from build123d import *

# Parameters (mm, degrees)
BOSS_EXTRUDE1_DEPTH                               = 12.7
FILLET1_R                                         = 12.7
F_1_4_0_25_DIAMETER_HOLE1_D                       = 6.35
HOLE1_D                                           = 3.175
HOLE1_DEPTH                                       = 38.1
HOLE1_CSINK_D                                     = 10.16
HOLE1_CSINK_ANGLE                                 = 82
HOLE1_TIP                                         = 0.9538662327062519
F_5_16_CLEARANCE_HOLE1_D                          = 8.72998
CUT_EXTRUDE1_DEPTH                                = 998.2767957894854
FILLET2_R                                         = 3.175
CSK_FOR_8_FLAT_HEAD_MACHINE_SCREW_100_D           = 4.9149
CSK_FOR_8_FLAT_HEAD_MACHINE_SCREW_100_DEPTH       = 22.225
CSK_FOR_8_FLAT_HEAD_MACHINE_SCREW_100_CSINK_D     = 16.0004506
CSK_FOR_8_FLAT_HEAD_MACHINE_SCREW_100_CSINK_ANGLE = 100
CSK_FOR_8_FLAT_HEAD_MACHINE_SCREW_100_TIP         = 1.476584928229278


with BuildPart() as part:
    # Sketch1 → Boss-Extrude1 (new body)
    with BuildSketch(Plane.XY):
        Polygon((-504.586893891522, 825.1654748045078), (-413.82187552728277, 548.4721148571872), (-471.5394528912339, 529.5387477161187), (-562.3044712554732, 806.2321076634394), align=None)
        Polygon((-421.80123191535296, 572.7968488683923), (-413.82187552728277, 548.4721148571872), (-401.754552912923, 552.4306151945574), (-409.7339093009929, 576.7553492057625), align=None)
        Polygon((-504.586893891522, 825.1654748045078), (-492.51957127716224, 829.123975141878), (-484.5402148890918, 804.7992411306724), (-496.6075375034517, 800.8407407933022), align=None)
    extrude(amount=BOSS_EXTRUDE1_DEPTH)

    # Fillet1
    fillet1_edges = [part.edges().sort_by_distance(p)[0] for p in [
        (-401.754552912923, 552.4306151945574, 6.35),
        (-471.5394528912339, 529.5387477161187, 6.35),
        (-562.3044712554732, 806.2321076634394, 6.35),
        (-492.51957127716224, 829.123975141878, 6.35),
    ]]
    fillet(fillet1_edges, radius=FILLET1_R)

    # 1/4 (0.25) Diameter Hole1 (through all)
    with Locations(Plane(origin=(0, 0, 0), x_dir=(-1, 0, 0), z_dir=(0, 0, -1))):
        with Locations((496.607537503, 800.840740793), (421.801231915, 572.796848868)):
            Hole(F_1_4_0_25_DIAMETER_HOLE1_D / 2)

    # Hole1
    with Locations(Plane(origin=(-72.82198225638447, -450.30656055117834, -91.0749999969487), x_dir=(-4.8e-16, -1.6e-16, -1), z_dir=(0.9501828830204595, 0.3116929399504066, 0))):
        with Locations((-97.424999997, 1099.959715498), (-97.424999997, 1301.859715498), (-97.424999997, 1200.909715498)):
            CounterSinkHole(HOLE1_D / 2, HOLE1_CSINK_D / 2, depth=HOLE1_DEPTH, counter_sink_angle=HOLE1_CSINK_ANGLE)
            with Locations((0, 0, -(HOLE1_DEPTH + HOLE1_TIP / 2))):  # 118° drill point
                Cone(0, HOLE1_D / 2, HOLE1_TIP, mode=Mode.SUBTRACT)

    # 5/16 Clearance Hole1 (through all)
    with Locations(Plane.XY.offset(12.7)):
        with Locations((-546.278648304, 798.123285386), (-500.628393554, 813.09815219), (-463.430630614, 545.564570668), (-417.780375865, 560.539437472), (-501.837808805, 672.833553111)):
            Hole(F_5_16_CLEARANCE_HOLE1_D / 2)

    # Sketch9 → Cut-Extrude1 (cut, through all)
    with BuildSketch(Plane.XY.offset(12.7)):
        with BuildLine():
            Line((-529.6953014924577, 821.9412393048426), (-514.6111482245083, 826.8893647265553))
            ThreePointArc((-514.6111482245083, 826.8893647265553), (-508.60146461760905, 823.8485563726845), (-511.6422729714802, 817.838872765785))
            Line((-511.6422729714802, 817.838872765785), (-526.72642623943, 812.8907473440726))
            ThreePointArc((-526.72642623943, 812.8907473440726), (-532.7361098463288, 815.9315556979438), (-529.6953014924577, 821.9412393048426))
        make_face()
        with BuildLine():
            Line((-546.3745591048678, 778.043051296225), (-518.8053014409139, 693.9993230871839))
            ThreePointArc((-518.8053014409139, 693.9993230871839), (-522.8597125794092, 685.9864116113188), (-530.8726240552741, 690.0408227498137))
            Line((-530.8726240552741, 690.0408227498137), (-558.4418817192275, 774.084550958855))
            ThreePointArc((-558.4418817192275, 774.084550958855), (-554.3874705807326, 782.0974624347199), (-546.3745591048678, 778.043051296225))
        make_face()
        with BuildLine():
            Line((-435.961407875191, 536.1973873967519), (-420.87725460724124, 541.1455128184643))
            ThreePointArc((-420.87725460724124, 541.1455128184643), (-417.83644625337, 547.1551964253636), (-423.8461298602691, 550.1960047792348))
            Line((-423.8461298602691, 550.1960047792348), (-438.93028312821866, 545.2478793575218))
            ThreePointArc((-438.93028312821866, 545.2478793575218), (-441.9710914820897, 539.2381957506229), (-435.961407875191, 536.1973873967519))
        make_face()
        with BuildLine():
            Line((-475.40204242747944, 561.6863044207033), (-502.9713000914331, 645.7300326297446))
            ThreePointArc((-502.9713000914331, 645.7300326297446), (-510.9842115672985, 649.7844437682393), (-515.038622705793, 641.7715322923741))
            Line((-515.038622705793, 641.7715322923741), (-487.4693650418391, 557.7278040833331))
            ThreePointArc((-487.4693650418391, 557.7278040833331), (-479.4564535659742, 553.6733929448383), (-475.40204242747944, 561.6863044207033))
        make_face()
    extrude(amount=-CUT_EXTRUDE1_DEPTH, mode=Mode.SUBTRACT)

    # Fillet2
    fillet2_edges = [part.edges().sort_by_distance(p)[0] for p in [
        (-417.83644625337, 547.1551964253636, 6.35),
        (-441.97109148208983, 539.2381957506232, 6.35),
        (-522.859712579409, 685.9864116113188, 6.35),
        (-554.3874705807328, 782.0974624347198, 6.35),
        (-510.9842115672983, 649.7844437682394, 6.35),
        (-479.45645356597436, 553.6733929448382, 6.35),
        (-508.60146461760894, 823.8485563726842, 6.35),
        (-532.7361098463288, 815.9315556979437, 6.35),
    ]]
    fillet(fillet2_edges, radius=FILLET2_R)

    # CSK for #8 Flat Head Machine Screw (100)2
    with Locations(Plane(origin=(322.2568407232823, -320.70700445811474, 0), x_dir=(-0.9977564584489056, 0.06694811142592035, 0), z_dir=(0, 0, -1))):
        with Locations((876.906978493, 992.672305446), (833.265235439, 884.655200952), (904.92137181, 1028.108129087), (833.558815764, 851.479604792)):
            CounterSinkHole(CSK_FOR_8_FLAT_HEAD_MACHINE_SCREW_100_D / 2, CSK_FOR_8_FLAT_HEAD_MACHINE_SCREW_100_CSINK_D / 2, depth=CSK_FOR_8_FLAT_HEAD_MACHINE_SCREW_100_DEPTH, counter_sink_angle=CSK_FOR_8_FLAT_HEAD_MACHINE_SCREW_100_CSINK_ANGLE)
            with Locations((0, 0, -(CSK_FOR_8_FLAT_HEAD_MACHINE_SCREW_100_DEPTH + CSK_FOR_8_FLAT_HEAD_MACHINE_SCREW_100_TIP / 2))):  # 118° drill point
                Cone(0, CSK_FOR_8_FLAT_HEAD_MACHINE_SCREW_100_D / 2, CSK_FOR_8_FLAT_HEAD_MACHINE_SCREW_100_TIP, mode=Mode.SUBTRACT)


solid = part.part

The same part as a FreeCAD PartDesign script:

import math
import FreeCAD as App
import Part
import Sketcher

V = App.Vector
Q = App.Units.Quantity


def edges_at(feature, points):
    """Names of the edges that pass closest to the given points."""
    edges = feature.Shape.Edges
    near = lambda p: min(range(len(edges)), key=lambda i: edges[i].distToShape(Part.Vertex(*p))[0])
    return sorted({f"Edge{near(p) + 1}" for p in points})


def add_polygon(sketch, points):
    """Adds a closed chain of lines whose ends are joined by coincident constraints."""
    first, n = sketch.GeometryCount, len(points)
    for a, b in zip(points, points[1:] + points[:1]):
        sketch.addGeometry(Part.LineSegment(App.Vector(*a, 0), App.Vector(*b, 0)), False)
    for i in range(n):
        sketch.addConstraint(Sketcher.Constraint("Coincident", first + i, 2, first + (i + 1) % n, 1))

doc = App.newDocument("Part")
params = doc.addObject("Spreadsheet::Sheet", "Params")
for row, (alias, value) in enumerate([
    ("sketch1_length", "0.5 in"),
    ("pad1_length", "0.5 in"),
    ("fillet_radius", "0.5 in"),
    ("sketch2_diameter", "0.25 in"),
    ("hole_diameter", "0.25 in"),
    ("sketch3_diameter", "0.125 in"),
    ("hole2_diameter", "0.125 in"),
    ("hole2_depth", "1.5 in"),
    ("hole2_csink_diameter", "0.4 in"),
    ("hole3_diameter", "0.3437 in"),
    ("sketch5_radius", "0.25 in"),
    ("sketch5_radius2", "0.1875 in"),
    ("sketch5_length", "0.625 in"),
    ("fillet2_radius", "0.125 in"),
    ("hole4_diameter", "0.1935 in"),
    ("hole4_depth", "0.875 in"),
    ("hole4_csink_diameter", "16.000451 mm"),
], start=1):
    params.set(f"A{row}", alias)
    params.set(f"B{row}", "=" + value)
    params.setAlias(f"B{row}", alias)

body = doc.addObject("PartDesign::Body", "Body")

# Sketch on XY plane
sketch1 = doc.addObject("Sketcher::SketchObject", "Sketch")
body.addObject(sketch1)
sketch1.AttachmentSupport = (doc.XY_Plane, [""])
sketch1.MapMode = "FlatFace"
add_polygon(sketch1, [(-421.801232, 572.796849), (-496.607538, 800.840741), (-484.540215, 804.799241), (-492.519571, 829.123975), (-562.304471, 806.232108), (-471.539453, 529.538748), (-401.754553, 552.430615), (-409.733909, 576.755349)])  # lines 0-7
sketch1.addConstraint([
    Sketcher.Constraint("Perpendicular", 0, 1),
    Sketcher.Constraint("Perpendicular", 1, 2),
    Sketcher.Constraint("Perpendicular", 2, 3),
    Sketcher.Constraint("Perpendicular", 3, 4),
    Sketcher.Constraint("Perpendicular", 4, 5),
    Sketcher.Constraint("Perpendicular", 5, 6),
    Sketcher.Constraint("Perpendicular", 6, 7),
    Sketcher.Constraint("Equal", 3, 5),
    Sketcher.Constraint("Equal", 2, 6),
    Sketcher.Constraint("Distance", 1, Q("0.5 in")),
    Sketcher.Constraint("Distance", 0, 240.0),
    Sketcher.Constraint("DistanceY", 0, 2, 1, 2, 3.9585),
    Sketcher.Constraint("DistanceX", 3, 2, 2, 2, 69.7849),
    Sketcher.Constraint("DistanceY", 4, 2, 6, 2, 47.216601),
    Sketcher.Constraint("DistanceY", -1, 1, 0, 2, 800.840741),
    Sketcher.Constraint("DistanceX", 2, 2, -1, 1, 492.519571),
])
sketch1.setExpression("Constraints[17]", "Params.sketch1_length")
pad1 = doc.addObject("PartDesign::Pad", "Pad")
body.addObject(pad1)
pad1.Profile = sketch1
pad1.setExpression("Length", "Params.pad1_length")
doc.recompute()

fillet = doc.addObject("PartDesign::Fillet", "Fillet")
body.addObject(fillet)
fillet.Base = (pad1, edges_at(pad1, [
    (-401.755, 552.431, 6.35),
    (-471.539, 529.539, 6.35),
    (-562.304, 806.232, 6.35),
    (-492.52, 829.124, 6.35),
]))
fillet.setExpression("Radius", "Params.fillet_radius")

# Sketch on XY plane
sketch2 = doc.addObject("Sketcher::SketchObject", "Sketch001")
body.addObject(sketch2)
sketch2.AttachmentSupport = (doc.XY_Plane, [""])
sketch2.MapMode = "FlatFace"
sketch2.addGeometry([
    Part.Circle(V(-496.607538, 800.840741, 0), V(0, 0, 1), 3.175),
    Part.Circle(V(-421.801232, 572.796849, 0), V(0, 0, 1), 3.175),
], False)
sketch2.addConstraint([
    Sketcher.Constraint("Equal", 0, 1),
    Sketcher.Constraint("Diameter", 0, Q("0.25 in")),
    Sketcher.Constraint("DistanceY", -1, 1, 0, 3, 800.840741),
    Sketcher.Constraint("DistanceX", 1, 3, -1, 1, 421.801232),
    Sketcher.Constraint("DistanceY", -1, 1, 1, 3, 572.796849),
    Sketcher.Constraint("DistanceX", 0, 3, -1, 1, 496.607538),
])
sketch2.setExpression("Constraints[1]", "Params.sketch2_diameter")
doc.recompute()
hole = doc.addObject("PartDesign::Hole", "Hole")
body.addObject(hole)
hole.Profile = sketch2
hole.ThreadType = "None"
hole.setExpression("Diameter", "Params.hole_diameter")
hole.DepthType = "ThroughAll"
hole.Reversed = True

# Sketch on an angled plane
sketch3 = doc.addObject("Sketcher::SketchObject", "Sketch002")
body.addObject(sketch3)
sketch3.Placement = App.Placement(V(-199.112321, -65.315747, 0), App.Rotation(V(0, 0, -1), V(-0.31169294, 0.950182883, 0), V(0.950182883, 0.31169294, 0), "ZXY"))
sketch3.addGeometry([
    Part.Circle(V(-6.35, 694.784227, 0), V(0, 0, 1), 1.5875),
    Part.Circle(V(-6.35, 896.684227, 0), V(0, 0, 1), 1.5875),
    Part.Circle(V(-6.35, 795.734227, 0), V(0, 0, 1), 1.5875),
], False)
sketch3.addConstraint([
    Sketcher.Constraint("Equal", 0, 1),
    Sketcher.Constraint("Equal", 1, 2),
    Sketcher.Constraint("Vertical", 0, 3, 1, 3),
    Sketcher.Constraint("Vertical", 1, 3, 2, 3),
    Sketcher.Constraint("Diameter", 0, Q("0.125 in")),
    Sketcher.Constraint("DistanceX", 0, 3, -1, 1, Q("0.25 in")),
    Sketcher.Constraint("DistanceY", 0, 3, 1, 3, 201.9),
    Sketcher.Constraint("DistanceY", 2, 3, 1, 3, 100.95),
    Sketcher.Constraint("DistanceY", -1, 1, 0, 3, 694.784227),
])
sketch3.setExpression("Constraints[4]", "Params.sketch3_diameter")
doc.recompute()
hole2 = doc.addObject("PartDesign::Hole", "Hole001")
body.addObject(hole2)
hole2.Profile = sketch3
hole2.ThreadType = "None"
hole2.setExpression("Diameter", "Params.hole2_diameter")
hole2.DepthType = "Dimension"
hole2.setExpression("Depth", "Params.hole2_depth")
hole2.DrillPoint = "Angled"
hole2.DrillPointAngle = 118
hole2.HoleCutType = "Countersink"
hole2.setExpression("HoleCutDiameter", "Params.hole2_csink_diameter")
hole2.HoleCutCountersinkAngle = 82

# Sketch on XY plane
sketch4 = doc.addObject("Sketcher::SketchObject", "Sketch003")
body.addObject(sketch4)
sketch4.AttachmentSupport = (doc.XY_Plane, [""])
sketch4.MapMode = "FlatFace"
sketch4.AttachmentOffset = App.Placement(V(0, 0, 0.5 * 25.4), App.Rotation())
sketch4.addGeometry([
    Part.Circle(V(-546.278648, 798.123285, 0), V(0, 0, 1), 4.36499),  # 0
    Part.Circle(V(-500.628394, 813.098152, 0), V(0, 0, 1), 4.36499),  # 1
    Part.Circle(V(-463.430631, 545.564571, 0), V(0, 0, 1), 4.36499),  # 2
    Part.Circle(V(-417.780376, 560.539437, 0), V(0, 0, 1), 4.36499),  # 3
    Part.Circle(V(-501.837809, 672.833553, 0), V(0, 0, 1), 4.36499),  # 4
], False)
sketch4.addConstraint([
    Sketcher.Constraint("Equal", 0, 1),
    Sketcher.Constraint("Equal", 1, 2),
    Sketcher.Constraint("Equal", 2, 3),
    Sketcher.Constraint("Equal", 3, 4),
    Sketcher.Constraint("Diameter", 0, Q("0.3437 in")),
    Sketcher.Constraint("DistanceY", 4, 3, 1, 3, 140.264599),
    Sketcher.Constraint("DistanceX", 0, 3, -1, 1, 546.278648),
    Sketcher.Constraint("DistanceX", 2, 3, -1, 1, 463.430631),
    Sketcher.Constraint("DistanceY", -1, 1, 2, 3, 545.564571),
    Sketcher.Constraint("DistanceX", 4, 3, -1, 1, 501.837809),
    Sketcher.Constraint("DistanceY", 2, 3, 1, 3, 267.533582),
    Sketcher.Constraint("DistanceY", -1, 1, 0, 3, 798.123285),
    Sketcher.Constraint("DistanceX", 1, 3, -1, 1, 500.628394),
    Sketcher.Constraint("DistanceX", 3, 3, -1, 1, 417.780376),
    Sketcher.Constraint("DistanceY", -1, 1, 3, 3, 560.539437),
])
doc.recompute()
hole3 = doc.addObject("PartDesign::Hole", "Hole002")
body.addObject(hole3)
hole3.Profile = sketch4
hole3.ThreadType = "None"
hole3.setExpression("Diameter", "Params.hole3_diameter")
hole3.DepthType = "ThroughAll"

# Sketch on XY plane
sketch5 = doc.addObject("Sketcher::SketchObject", "Sketch004")
body.addObject(sketch5)
sketch5.AttachmentSupport = (doc.XY_Plane, [""])
sketch5.MapMode = "FlatFace"
sketch5.AttachmentOffset = App.Placement(V(0, 0, 0.5 * 25.4), App.Rotation())
sketch5.addGeometry([
    Part.LineSegment(V(-514.611148, 826.889365, 0), V(-529.695301, 821.941239, 0)),  # 0
    Part.ArcOfCircle(Part.Circle(V(-528.210864, 817.415993, 0), V(0, 0, 1), 4.7625), math.radians(108.161285), math.radians(288.161285)),  # 1
    Part.LineSegment(V(-526.726426, 812.890747, 0), V(-511.642273, 817.838873, 0)),  # 2
    Part.ArcOfCircle(Part.Circle(V(-513.126711, 822.364119, 0), V(0, 0, 1), 4.7625), math.radians(-71.838715), math.radians(108.161285)),  # 3
    Part.LineSegment(V(-518.805301, 693.999323, 0), V(-546.374559, 778.043051, 0)),  # 4
    Part.ArcOfCircle(Part.Circle(V(-552.40822, 776.063801, 0), V(0, 0, 1), 6.35), math.radians(18.161285), math.radians(198.161285)),  # 5
    Part.LineSegment(V(-558.441882, 774.084551, 0), V(-530.872624, 690.040823, 0)),  # 6
    Part.ArcOfCircle(Part.Circle(V(-524.838963, 692.020073, 0), V(0, 0, 1), 6.35), math.radians(-161.838715), math.radians(18.161285)),  # 7
    Part.LineSegment(V(-435.961408, 536.197387, 0), V(-420.877255, 541.145513, 0)),  # 8
    Part.ArcOfCircle(Part.Circle(V(-422.361692, 545.670759, 0), V(0, 0, 1), 4.7625), math.radians(-71.838715), math.radians(108.161285)),  # 9
    Part.LineSegment(V(-423.84613, 550.196005, 0), V(-438.930283, 545.247879, 0)),  # 10
    Part.ArcOfCircle(Part.Circle(V(-437.445846, 540.722633, 0), V(0, 0, 1), 4.7625), math.radians(108.161285), math.radians(288.161285)),  # 11
    Part.LineSegment(V(-475.402042, 561.686304, 0), V(-502.9713, 645.730033, 0)),  # 12
    Part.ArcOfCircle(Part.Circle(V(-509.004961, 643.750782, 0), V(0, 0, 1), 6.35), math.radians(18.161285), math.radians(198.161285)),  # 13
    Part.LineSegment(V(-515.038623, 641.771532, 0), V(-487.469365, 557.727804, 0)),  # 14
    Part.ArcOfCircle(Part.Circle(V(-481.435704, 559.707054, 0), V(0, 0, 1), 6.35), math.radians(-161.838715), math.radians(18.161285)),  # 15
], False)
sketch5.addConstraint([
    Sketcher.Constraint("Tangent", 0, 2, 1, 1),
    Sketcher.Constraint("Tangent", 1, 2, 2, 1),
    Sketcher.Constraint("Tangent", 2, 2, 3, 1),
    Sketcher.Constraint("Tangent", 3, 2, 0, 1),
    Sketcher.Constraint("Tangent", 4, 2, 5, 1),
    Sketcher.Constraint("Tangent", 5, 2, 6, 1),
    Sketcher.Constraint("Tangent", 6, 2, 7, 1),
    Sketcher.Constraint("Tangent", 7, 2, 4, 1),
    Sketcher.Constraint("Tangent", 8, 2, 9, 1),
    Sketcher.Constraint("Tangent", 9, 2, 10, 1),
    Sketcher.Constraint("Tangent", 10, 2, 11, 1),
    Sketcher.Constraint("Tangent", 11, 2, 8, 1),
    Sketcher.Constraint("Tangent", 12, 2, 13, 1),
    Sketcher.Constraint("Tangent", 13, 2, 14, 1),
    Sketcher.Constraint("Tangent", 14, 2, 15, 1),
    Sketcher.Constraint("Tangent", 15, 2, 12, 1),
    Sketcher.Constraint("Equal", 1, 3),
    Sketcher.Constraint("Equal", 5, 7),
    Sketcher.Constraint("Equal", 3, 9),
    Sketcher.Constraint("Equal", 9, 11),
    Sketcher.Constraint("Equal", 7, 13),
    Sketcher.Constraint("Equal", 13, 15),
    Sketcher.Constraint("Perpendicular", 2, 4),
    Sketcher.Constraint("Perpendicular", 6, 8),
    Sketcher.Constraint("Perpendicular", 10, 12),
    Sketcher.Constraint("Equal", 2, 8),
    Sketcher.Constraint("Equal", 6, 12),
    Sketcher.Constraint("Radius", 5, Q("0.25 in")),
    Sketcher.Constraint("Radius", 1, Q("0.1875 in")),
    Sketcher.Constraint("Distance", 0, Q("0.625 in")),
    Sketcher.Constraint("DistanceY", -1, 1, 5, 3, 776.063801),
    Sketcher.Constraint("DistanceX", 0, 2, -1, 1, 529.695301),
    Sketcher.Constraint("DistanceX", 7, 2, -1, 1, 518.805301),
    Sketcher.Constraint("DistanceX", 12, 2, -1, 1, 502.9713),
    Sketcher.Constraint("DistanceX", 1, 3, 7, 3, 3.371901),
    Sketcher.Constraint("DistanceY", 9, 2, 14, 2, 7.531799),
    Sketcher.Constraint("DistanceY", -1, 1, 3, 3, 822.364119),
    Sketcher.Constraint("DistanceX", 5, 3, -1, 1, 552.40822),
    Sketcher.Constraint("DistanceY", -1, 1, 9, 3, 545.670759),
    Sketcher.Constraint("DistanceX", 9, 2, -1, 1, 423.84613),
])
sketch5.setExpression("Constraints[27]", "Params.sketch5_radius")
sketch5.setExpression("Constraints[28]", "Params.sketch5_radius2")
sketch5.setExpression("Constraints[29]", "Params.sketch5_length")
pocket1 = doc.addObject("PartDesign::Pocket", "Pocket")
body.addObject(pocket1)
pocket1.Profile = sketch5
pocket1.Type = "ThroughAll"
doc.recompute()

fillet2 = doc.addObject("PartDesign::Fillet", "Fillet001")
body.addObject(fillet2)
fillet2.Base = (pocket1, edges_at(pocket1, [
    (-417.836, 547.155, 6.35),
    (-441.971, 539.238, 6.35),
    (-522.86, 685.986, 6.35),
    (-554.387, 782.097, 6.35),
    (-510.984, 649.784, 6.35),
    (-479.456, 553.673, 6.35),
    (-508.601, 823.849, 6.35),
    (-532.736, 815.932, 6.35),
]))
fillet2.setExpression("Radius", "Params.fillet2_radius")

# Sketch on XY plane
sketch6 = doc.addObject("Sketcher::SketchObject", "Sketch005")
body.addObject(sketch6)
sketch6.AttachmentSupport = (doc.XY_Plane, [""])
sketch6.MapMode = "FlatFace"
sketch6.addGeometry([
    Part.Circle(V(-486.225224, 728.445465, 0), V(0, 0, 1), 2.45745),
    Part.Circle(V(-449.912935, 617.748969, 0), V(0, 0, 1), 2.45745),
    Part.Circle(V(-511.804405, 765.677298, 0), V(0, 0, 1), 2.45745),
    Part.Circle(V(-452.4269, 584.667458, 0), V(0, 0, 1), 2.45745),
], False)
sketch6.addConstraint([
    Sketcher.Constraint("Equal", 0, 1),
    Sketcher.Constraint("Equal", 1, 2),
    Sketcher.Constraint("Equal", 2, 3),
    Sketcher.Constraint("Diameter", 0, Q("0.1935 in")),
    Sketcher.Constraint("DistanceX", 3, 3, -1, 1, 452.4269),
    Sketcher.Constraint("DistanceY", -1, 1, 1, 3, 617.748969),
    Sketcher.Constraint("DistanceY", -1, 1, 3, 3, 584.667458),
    Sketcher.Constraint("DistanceX", 0, 3, 1, 3, 36.31229),
    Sketcher.Constraint("DistanceX", 2, 3, 0, 3, 25.57918),
    Sketcher.Constraint("DistanceY", 1, 3, 2, 3, 147.928328),
    Sketcher.Constraint("DistanceX", 0, 3, -1, 1, 486.225224),
    Sketcher.Constraint("DistanceY", -1, 1, 0, 3, 728.445465),
])
doc.recompute()
hole4 = doc.addObject("PartDesign::Hole", "Hole003")
body.addObject(hole4)
hole4.Profile = sketch6
hole4.ThreadType = "None"
hole4.setExpression("Diameter", "Params.hole4_diameter")
hole4.DepthType = "Dimension"
hole4.setExpression("Depth", "Params.hole4_depth")
hole4.DrillPoint = "Angled"
hole4.DrillPointAngle = 118
hole4.HoleCutType = "Countersink"
hole4.setExpression("HoleCutDiameter", "Params.hole4_csink_diameter")
hole4.HoleCutCountersinkAngle = 100
hole4.Reversed = True

doc.recompute()
